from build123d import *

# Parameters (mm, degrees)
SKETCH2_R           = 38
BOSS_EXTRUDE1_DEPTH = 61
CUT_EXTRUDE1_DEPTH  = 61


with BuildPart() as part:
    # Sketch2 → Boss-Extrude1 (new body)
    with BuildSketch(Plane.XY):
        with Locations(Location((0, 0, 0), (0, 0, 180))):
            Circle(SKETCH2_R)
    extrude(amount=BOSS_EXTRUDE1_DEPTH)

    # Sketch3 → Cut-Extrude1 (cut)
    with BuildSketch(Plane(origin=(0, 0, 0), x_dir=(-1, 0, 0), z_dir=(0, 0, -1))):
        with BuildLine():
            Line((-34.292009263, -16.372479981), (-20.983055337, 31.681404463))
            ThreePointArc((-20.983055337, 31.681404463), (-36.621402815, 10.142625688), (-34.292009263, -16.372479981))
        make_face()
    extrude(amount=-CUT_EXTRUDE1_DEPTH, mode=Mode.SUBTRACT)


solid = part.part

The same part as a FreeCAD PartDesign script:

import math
import FreeCAD as App
import Part
import Sketcher
Q = App.Units.Quantity

doc = App.newDocument("Part")
params = doc.addObject("Spreadsheet::Sheet", "Params")
for row, (alias, value) in enumerate([
    ("sketch1_diameter", "76 mm"),
    ("pad1_length", "61 mm"),
    ("sketch2_radius", "38 mm"),
    ("pocket1_length", "61 mm"),
], start=1):
    params.set(f"A{row}", alias)
    params.set(f"B{row}", "=" + value)
    params.setAlias(f"B{row}", alias)

body = doc.addObject("PartDesign::Body", "Body")

sketch1 = body.newObject("Sketcher::SketchObject", "Sketch")
sketch1.AttachmentSupport = (doc.getObject("XY_Plane"), [""])
sketch1.MapMode = "FlatFace"
sketch1.addGeometry(Part.Circle(App.Vector(0, 0, 0), App.Vector(0, 0, 1), 38), False)
sketch1.addConstraint([
    Sketcher.Constraint("Coincident", 0, 3, -1, 1),
    Sketcher.Constraint("Diameter", 0, Q("76 mm")),
])
sketch1.setExpression("Constraints[1]", "Params.sketch1_diameter")
pad1 = body.newObject("PartDesign::Pad", "Pad")
pad1.Profile = sketch1
pad1.setExpression("Length", "Params.pad1_length")

sketch2 = body.newObject("Sketcher::SketchObject", "Sketch001")
sketch2.AttachmentSupport = (doc.getObject("XY_Plane"), [""])
sketch2.MapMode = "FlatFace"
sketch2.addGeometry([
    Part.LineSegment(App.Vector(34, -16, 0), App.Vector(21, 32, 0)),
    Part.ArcOfCircle(Part.Circle(App.Vector(0, 0, 0), App.Vector(0, 0, 1), 38), math.radians(-26), math.radians(56)),
], False)
sketch2.addConstraint([
    Sketcher.Constraint("Coincident", 0, 1, 1, 1),
    Sketcher.Constraint("Coincident", 1, 2, 0, 2),
    Sketcher.Constraint("Coincident", 1, 3, -1, 1),
    Sketcher.Constraint("Radius", 1, Q("38 mm")),
    Sketcher.Constraint("DistanceX", -1, 1, 0, 1, Q("34.292009 mm")),
    Sketcher.Constraint("Distance", 0, Q("49.862853 mm")),
])
sketch2.setExpression("Constraints[3]", "Params.sketch2_radius")
pocket1 = body.newObject("PartDesign::Pocket", "Pocket")
pocket1.Profile = sketch2
pocket1.setExpression("Length", "Params.pocket1_length")
pocket1.Reversed = True

doc.recompute()
